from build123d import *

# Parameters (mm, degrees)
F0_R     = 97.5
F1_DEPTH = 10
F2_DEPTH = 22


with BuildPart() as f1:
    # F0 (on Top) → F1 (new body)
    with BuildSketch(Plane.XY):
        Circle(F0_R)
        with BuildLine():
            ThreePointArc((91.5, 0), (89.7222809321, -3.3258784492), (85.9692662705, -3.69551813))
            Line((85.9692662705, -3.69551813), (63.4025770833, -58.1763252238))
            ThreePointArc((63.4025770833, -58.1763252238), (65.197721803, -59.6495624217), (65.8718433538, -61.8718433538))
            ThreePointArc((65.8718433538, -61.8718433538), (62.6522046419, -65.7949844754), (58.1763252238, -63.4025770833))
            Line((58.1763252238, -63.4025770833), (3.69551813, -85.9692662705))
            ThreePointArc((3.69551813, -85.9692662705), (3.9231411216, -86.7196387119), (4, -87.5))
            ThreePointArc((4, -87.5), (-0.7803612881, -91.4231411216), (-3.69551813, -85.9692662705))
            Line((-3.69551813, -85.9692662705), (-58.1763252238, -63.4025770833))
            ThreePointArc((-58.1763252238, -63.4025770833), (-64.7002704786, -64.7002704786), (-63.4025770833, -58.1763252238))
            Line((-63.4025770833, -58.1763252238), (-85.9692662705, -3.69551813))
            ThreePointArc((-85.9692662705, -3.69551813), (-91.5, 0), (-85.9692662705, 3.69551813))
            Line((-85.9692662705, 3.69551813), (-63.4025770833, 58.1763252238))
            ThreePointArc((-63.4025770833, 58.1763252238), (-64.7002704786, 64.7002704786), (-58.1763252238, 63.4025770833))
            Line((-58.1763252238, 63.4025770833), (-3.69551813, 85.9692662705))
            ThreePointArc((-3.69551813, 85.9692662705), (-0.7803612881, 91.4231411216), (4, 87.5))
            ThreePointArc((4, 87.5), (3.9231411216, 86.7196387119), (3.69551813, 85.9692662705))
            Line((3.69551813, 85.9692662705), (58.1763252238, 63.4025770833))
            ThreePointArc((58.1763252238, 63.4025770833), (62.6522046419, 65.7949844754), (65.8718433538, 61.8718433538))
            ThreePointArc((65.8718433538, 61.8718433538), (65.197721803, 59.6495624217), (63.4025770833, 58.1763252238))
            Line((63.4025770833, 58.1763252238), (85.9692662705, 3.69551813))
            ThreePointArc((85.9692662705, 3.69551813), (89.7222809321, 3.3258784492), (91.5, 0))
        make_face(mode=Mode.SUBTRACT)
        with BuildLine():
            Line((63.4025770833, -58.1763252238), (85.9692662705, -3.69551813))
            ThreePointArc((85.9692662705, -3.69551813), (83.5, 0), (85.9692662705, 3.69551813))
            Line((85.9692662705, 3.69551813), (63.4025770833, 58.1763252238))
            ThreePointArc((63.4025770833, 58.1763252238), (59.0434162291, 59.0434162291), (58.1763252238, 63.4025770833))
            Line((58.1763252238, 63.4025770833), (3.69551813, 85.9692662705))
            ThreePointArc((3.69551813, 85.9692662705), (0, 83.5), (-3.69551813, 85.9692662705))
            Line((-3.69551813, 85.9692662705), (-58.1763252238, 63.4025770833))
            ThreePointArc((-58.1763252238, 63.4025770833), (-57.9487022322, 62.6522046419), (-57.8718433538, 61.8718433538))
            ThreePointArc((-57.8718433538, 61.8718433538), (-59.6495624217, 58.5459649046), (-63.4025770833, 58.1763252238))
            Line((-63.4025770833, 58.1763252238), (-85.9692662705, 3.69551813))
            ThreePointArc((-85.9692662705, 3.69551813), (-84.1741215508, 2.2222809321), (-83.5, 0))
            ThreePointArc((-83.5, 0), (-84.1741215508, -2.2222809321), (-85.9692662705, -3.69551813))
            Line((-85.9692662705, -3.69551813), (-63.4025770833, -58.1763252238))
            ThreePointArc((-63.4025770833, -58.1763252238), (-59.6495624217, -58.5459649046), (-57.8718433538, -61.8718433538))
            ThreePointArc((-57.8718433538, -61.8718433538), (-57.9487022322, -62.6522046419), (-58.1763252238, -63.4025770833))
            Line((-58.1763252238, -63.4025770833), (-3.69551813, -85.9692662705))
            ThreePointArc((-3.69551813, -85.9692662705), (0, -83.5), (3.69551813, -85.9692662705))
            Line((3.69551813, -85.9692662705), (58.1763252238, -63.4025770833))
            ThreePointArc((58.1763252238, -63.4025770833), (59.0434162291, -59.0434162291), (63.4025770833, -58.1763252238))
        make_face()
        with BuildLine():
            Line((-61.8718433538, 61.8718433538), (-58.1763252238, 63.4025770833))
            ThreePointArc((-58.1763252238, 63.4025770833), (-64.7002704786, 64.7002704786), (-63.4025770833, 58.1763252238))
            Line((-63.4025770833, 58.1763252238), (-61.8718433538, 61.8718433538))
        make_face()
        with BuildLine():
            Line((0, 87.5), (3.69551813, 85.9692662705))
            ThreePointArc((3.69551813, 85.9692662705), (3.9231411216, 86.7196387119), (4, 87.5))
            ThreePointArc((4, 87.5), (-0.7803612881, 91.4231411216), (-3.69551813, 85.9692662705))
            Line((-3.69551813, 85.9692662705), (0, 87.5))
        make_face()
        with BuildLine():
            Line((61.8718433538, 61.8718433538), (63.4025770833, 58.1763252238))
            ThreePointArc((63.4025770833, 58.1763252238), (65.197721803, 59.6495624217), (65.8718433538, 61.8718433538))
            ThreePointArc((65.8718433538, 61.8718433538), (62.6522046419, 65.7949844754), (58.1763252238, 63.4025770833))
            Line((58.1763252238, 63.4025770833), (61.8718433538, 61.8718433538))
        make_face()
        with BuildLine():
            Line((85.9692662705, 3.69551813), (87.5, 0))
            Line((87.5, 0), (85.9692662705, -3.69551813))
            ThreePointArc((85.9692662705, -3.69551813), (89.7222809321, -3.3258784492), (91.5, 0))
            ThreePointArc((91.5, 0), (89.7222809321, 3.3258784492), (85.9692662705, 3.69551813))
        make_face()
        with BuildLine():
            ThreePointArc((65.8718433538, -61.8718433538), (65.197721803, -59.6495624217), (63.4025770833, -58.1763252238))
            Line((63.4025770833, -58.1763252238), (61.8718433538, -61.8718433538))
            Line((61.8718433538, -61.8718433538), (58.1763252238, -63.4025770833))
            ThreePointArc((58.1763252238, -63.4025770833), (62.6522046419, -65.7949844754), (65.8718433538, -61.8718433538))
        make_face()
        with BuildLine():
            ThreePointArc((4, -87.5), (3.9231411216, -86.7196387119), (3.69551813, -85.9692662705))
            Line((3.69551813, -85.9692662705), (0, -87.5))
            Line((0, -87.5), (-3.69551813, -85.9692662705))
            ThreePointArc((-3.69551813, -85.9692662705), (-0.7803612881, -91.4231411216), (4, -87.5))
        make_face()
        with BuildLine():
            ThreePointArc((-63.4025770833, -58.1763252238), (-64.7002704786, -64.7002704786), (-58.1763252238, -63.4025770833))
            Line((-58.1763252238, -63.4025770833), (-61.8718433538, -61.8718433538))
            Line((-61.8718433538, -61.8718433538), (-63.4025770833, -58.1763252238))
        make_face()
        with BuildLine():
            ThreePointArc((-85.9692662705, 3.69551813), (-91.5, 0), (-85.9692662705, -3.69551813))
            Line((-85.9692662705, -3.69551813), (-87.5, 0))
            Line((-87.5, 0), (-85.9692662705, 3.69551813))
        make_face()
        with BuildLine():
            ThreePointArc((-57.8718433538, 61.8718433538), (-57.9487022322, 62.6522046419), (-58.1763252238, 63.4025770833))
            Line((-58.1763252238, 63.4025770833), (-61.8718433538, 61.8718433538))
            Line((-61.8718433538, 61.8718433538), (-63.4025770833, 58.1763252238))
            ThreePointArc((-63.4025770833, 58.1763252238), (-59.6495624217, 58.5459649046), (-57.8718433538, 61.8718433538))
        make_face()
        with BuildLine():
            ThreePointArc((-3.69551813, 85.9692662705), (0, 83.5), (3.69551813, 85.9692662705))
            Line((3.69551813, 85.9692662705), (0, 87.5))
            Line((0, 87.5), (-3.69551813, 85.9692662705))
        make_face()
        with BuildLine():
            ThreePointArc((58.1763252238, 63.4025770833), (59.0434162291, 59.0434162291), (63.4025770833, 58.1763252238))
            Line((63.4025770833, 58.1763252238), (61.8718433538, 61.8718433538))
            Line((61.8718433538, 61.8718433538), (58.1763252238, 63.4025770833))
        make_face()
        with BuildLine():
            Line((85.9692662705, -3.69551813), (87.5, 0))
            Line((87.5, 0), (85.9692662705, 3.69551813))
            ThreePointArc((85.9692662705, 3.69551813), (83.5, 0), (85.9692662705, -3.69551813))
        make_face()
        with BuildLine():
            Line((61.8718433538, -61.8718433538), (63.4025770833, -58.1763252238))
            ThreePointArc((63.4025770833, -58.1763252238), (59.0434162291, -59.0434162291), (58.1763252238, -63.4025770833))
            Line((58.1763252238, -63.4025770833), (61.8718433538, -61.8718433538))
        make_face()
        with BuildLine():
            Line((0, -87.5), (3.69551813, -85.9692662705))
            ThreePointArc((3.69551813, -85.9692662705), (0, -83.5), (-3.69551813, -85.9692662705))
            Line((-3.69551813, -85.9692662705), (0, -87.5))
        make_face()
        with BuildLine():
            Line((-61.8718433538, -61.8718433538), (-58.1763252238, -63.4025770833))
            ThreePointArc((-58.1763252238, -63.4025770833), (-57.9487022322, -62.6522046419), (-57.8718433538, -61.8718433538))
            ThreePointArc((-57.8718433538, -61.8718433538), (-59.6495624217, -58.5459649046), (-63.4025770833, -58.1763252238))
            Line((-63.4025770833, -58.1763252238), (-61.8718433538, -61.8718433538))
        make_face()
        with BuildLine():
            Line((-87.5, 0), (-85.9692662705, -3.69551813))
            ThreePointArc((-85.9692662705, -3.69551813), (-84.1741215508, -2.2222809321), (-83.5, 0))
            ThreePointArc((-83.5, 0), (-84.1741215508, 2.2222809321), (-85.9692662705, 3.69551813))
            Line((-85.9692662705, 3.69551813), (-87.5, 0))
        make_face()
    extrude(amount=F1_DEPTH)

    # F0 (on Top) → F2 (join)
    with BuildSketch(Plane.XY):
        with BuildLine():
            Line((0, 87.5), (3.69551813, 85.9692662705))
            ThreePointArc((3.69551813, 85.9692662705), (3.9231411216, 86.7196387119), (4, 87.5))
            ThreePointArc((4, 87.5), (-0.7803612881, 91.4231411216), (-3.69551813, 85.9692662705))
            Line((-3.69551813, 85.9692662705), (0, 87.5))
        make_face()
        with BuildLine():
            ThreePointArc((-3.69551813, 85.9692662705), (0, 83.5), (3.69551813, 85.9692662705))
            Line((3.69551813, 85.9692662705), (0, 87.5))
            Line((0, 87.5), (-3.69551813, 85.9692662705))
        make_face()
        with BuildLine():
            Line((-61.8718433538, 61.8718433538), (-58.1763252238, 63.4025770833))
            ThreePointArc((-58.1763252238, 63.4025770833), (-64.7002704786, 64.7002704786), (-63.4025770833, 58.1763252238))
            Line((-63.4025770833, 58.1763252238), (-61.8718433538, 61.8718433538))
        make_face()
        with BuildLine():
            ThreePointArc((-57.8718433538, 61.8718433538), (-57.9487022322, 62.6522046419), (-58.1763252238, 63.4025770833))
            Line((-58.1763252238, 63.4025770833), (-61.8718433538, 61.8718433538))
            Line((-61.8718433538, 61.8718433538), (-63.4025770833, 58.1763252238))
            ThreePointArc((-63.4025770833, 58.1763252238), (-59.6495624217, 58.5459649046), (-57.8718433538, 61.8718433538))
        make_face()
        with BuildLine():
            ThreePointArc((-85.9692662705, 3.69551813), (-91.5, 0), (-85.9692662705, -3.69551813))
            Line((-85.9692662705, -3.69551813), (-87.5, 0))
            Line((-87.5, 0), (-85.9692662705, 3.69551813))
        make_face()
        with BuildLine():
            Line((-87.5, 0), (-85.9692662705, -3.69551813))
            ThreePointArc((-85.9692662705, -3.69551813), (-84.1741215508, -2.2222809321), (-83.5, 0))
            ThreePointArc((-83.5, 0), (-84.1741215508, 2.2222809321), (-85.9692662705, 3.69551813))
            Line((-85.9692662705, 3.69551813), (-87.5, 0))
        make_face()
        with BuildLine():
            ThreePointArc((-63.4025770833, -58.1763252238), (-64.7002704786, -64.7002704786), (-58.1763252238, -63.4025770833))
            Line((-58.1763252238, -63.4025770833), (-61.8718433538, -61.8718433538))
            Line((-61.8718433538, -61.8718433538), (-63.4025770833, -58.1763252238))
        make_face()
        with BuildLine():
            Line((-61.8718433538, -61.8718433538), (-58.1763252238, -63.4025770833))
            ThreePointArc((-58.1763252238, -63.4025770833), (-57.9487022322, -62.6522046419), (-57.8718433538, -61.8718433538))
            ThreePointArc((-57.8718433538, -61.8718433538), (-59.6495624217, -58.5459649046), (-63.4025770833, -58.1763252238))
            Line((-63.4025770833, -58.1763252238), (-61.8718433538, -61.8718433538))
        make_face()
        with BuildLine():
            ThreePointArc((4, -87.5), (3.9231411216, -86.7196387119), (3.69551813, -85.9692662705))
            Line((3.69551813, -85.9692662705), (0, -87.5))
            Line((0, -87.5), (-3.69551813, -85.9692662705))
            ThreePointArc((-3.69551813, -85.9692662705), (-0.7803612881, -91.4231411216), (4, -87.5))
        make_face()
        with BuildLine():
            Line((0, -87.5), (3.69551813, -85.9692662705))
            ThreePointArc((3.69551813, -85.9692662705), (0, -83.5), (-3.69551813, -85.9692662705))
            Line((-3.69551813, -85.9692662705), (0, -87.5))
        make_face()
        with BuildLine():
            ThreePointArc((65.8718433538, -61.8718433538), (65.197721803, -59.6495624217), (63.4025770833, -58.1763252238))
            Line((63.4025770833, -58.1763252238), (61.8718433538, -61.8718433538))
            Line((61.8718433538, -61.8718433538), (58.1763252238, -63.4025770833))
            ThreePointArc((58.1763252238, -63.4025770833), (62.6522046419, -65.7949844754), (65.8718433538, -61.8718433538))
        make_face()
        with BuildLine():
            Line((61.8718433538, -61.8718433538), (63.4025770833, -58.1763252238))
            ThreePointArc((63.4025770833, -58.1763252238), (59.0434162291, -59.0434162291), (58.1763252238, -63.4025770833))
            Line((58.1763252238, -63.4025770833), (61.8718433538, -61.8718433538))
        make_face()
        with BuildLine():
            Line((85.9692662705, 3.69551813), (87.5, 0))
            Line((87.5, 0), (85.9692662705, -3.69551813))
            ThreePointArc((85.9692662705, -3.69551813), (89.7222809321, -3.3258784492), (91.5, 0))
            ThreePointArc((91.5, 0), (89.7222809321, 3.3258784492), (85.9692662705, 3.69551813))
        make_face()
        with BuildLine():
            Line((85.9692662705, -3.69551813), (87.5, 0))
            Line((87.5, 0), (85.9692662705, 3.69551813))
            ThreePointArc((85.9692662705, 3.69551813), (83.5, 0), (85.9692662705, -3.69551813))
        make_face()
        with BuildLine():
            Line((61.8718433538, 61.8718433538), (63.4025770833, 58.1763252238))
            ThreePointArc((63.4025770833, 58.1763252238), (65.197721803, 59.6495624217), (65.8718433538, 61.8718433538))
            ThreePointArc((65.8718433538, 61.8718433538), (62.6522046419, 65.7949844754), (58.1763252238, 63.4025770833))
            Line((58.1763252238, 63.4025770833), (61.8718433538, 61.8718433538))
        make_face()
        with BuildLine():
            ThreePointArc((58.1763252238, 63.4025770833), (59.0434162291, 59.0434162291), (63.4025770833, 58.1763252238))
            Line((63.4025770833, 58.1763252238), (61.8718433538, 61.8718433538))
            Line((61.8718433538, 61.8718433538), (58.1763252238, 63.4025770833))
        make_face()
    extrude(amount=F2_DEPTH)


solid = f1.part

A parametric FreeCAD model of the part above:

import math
import FreeCAD as App
import Part
import Sketcher
from FreeCAD import Vector
Q = App.Units.Quantity

doc = App.newDocument("Part")
body = doc.addObject("PartDesign::Body", "Body")

# Sketch on XY plane
sketch1 = doc.addObject("Sketcher::SketchObject", "Sketch")
body.addObject(sketch1)
sketch1.AttachmentSupport = (doc.XY_Plane, [""])
sketch1.MapMode = "FlatFace"
sketch1.addGeometry(Part.Circle(Vector(0, 0, 0), Vector(0, 0, 1), 98), False)
sketch1.addConstraint(Sketcher.Constraint("Coincident", 0, 3, -1, 1))
sketch1.addConstraint(Sketcher.Constraint("Diameter", 0, Q("195 mm")))
pad1 = doc.addObject("PartDesign::Pad", "Pad")
body.addObject(pad1)
pad1.Profile = sketch1
pad1.Length = 10

# Sketch on XY plane
sketch2 = doc.addObject("Sketcher::SketchObject", "Sketch001")
body.addObject(sketch2)
sketch2.AttachmentSupport = (doc.XY_Plane, [""])
sketch2.MapMode = "FlatFace"
sketch2.addGeometry(Part.ArcOfCircle(Part.Circle(Vector(0, 87.5, 0), Vector(0, 0, 1), 4), math.radians(-22), math.radians(0)), False)
sketch2.addGeometry(Part.ArcOfCircle(Part.Circle(Vector(0, 87.5, 0), Vector(0, 0, 1), 4), math.radians(0), math.radians(202)), False)
sketch2.addGeometry(Part.ArcOfCircle(Part.Circle(Vector(0, 87.5, 0), Vector(0, 0, 1), 4), math.radians(-158), math.radians(-22)), False)
sketch2.addGeometry(Part.ArcOfCircle(Part.Circle(Vector(-61.9, 61.9, 0), Vector(0, 0, 1), 4), math.radians(22), math.radians(248)), False)
sketch2.addGeometry(Part.ArcOfCircle(Part.Circle(Vector(-61.9, 61.9, 0), Vector(0, 0, 1), 4), math.radians(-112), math.radians(0)), False)
sketch2.addGeometry(Part.ArcOfCircle(Part.Circle(Vector(-61.9, 61.9, 0), Vector(0, 0, 1), 4), math.radians(0), math.radians(22)), False)
sketch2.addGeometry(Part.ArcOfCircle(Part.Circle(Vector(-87.5, 0, 0), Vector(0, 0, 1), 4), math.radians(68), math.radians(292)), False)
sketch2.addGeometry(Part.ArcOfCircle(Part.Circle(Vector(-87.5, 0, 0), Vector(0, 0, 1), 4), math.radians(-68), math.radians(0)), False)
sketch2.addGeometry(Part.ArcOfCircle(Part.Circle(Vector(-87.5, 0, 0), Vector(0, 0, 1), 4), math.radians(0), math.radians(68)), False)
sketch2.addGeometry(Part.ArcOfCircle(Part.Circle(Vector(-61.9, -61.9, 0), Vector(0, 0, 1), 4), math.radians(112), math.radians(338)), False)
sketch2.addGeometry(Part.ArcOfCircle(Part.Circle(Vector(-61.9, -61.9, 0), Vector(0, 0, 1), 4), math.radians(-22), math.radians(0)), False)
sketch2.addGeometry(Part.ArcOfCircle(Part.Circle(Vector(-61.9, -61.9, 0), Vector(0, 0, 1), 4), math.radians(0), math.radians(112)), False)
sketch2.addGeometry(Part.ArcOfCircle(Part.Circle(Vector(0, -87.5, 0), Vector(0, 0, 1), 4), math.radians(0), math.radians(22)), False)
sketch2.addGeometry(Part.ArcOfCircle(Part.Circle(Vector(0, -87.5, 0), Vector(0, 0, 1), 4), math.radians(22), math.radians(158)), False)
sketch2.addGeometry(Part.ArcOfCircle(Part.Circle(Vector(0, -87.5, 0), Vector(0, 0, 1), 4), math.radians(158), math.radians(360)), False)
sketch2.addGeometry(Part.ArcOfCircle(Part.Circle(Vector(61.9, -61.9, 0), Vector(0, 0, 1), 4), math.radians(0), math.radians(68)), False)
sketch2.addGeometry(Part.ArcOfCircle(Part.Circle(Vector(61.9, -61.9, 0), Vector(0, 0, 1), 4), math.radians(68), math.radians(202)), False)
sketch2.addGeometry(Part.ArcOfCircle(Part.Circle(Vector(61.9, -61.9, 0), Vector(0, 0, 1), 4), math.radians(-158), math.radians(0)), False)
sketch2.addGeometry(Part.ArcOfCircle(Part.Circle(Vector(87.5, 0, 0), Vector(0, 0, 1), 4), math.radians(-112), math.radians(0)), False)
sketch2.addGeometry(Part.ArcOfCircle(Part.Circle(Vector(87.5, 0, 0), Vector(0, 0, 1), 4), math.radians(0), math.radians(112)), False)
sketch2.addGeometry(Part.ArcOfCircle(Part.Circle(Vector(87.5, 0, 0), Vector(0, 0, 1), 4), math.radians(112), math.radians(248)), False)
sketch2.addGeometry(Part.ArcOfCircle(Part.Circle(Vector(61.9, 61.9, 0), Vector(0, 0, 1), 4), math.radians(-68), math.radians(0)), False)
sketch2.addGeometry(Part.ArcOfCircle(Part.Circle(Vector(61.9, 61.9, 0), Vector(0, 0, 1), 4), math.radians(0), math.radians(158)), False)
sketch2.addGeometry(Part.ArcOfCircle(Part.Circle(Vector(61.9, 61.9, 0), Vector(0, 0, 1), 4), math.radians(158), math.radians(292)), False)
sketch2.addConstraint(Sketcher.Constraint("Tangent", 0, 2, 1, 1))
sketch2.addConstraint(Sketcher.Constraint("Tangent", 1, 2, 2, 1))
sketch2.addConstraint(Sketcher.Constraint("Tangent", 2, 2, 0, 1))
sketch2.addConstraint(Sketcher.Constraint("Tangent", 3, 2, 4, 1))
sketch2.addConstraint(Sketcher.Constraint("Tangent", 4, 2, 5, 1))
sketch2.addConstraint(Sketcher.Constraint("Tangent", 5, 2, 3, 1))
sketch2.addConstraint(Sketcher.Constraint("Tangent", 6, 2, 7, 1))
sketch2.addConstraint(Sketcher.Constraint("Tangent", 7, 2, 8, 1))
sketch2.addConstraint(Sketcher.Constraint("Tangent", 8, 2, 6, 1))
sketch2.addConstraint(Sketcher.Constraint("Tangent", 9, 2, 10, 1))
sketch2.addConstraint(Sketcher.Constraint("Tangent", 10, 2, 11, 1))
sketch2.addConstraint(Sketcher.Constraint("Tangent", 11, 2, 9, 1))
sketch2.addConstraint(Sketcher.Constraint("Tangent", 12, 2, 13, 1))
sketch2.addConstraint(Sketcher.Constraint("Tangent", 13, 2, 14, 1))
sketch2.addConstraint(Sketcher.Constraint("Tangent", 14, 2, 12, 1))
sketch2.addConstraint(Sketcher.Constraint("Tangent", 15, 2, 16, 1))
sketch2.addConstraint(Sketcher.Constraint("Tangent", 16, 2, 17, 1))
sketch2.addConstraint(Sketcher.Constraint("Tangent", 17, 2, 15, 1))
sketch2.addConstraint(Sketcher.Constraint("Tangent", 18, 2, 19, 1))
sketch2.addConstraint(Sketcher.Constraint("Tangent", 19, 2, 20, 1))
sketch2.addConstraint(Sketcher.Constraint("Tangent", 20, 2, 18, 1))
sketch2.addConstraint(Sketcher.Constraint("Tangent", 21, 2, 22, 1))
sketch2.addConstraint(Sketcher.Constraint("Tangent", 22, 2, 23, 1))
sketch2.addConstraint(Sketcher.Constraint("Tangent", 23, 2, 21, 1))
sketch2.addConstraint(Sketcher.Constraint("Equal", 2, 3))
sketch2.addConstraint(Sketcher.Constraint("Equal", 5, 6))
sketch2.addConstraint(Sketcher.Constraint("Equal", 8, 9))
sketch2.addConstraint(Sketcher.Constraint("Equal", 11, 12))
sketch2.addConstraint(Sketcher.Constraint("Equal", 14, 15))
sketch2.addConstraint(Sketcher.Constraint("Equal", 17, 18))
sketch2.addConstraint(Sketcher.Constraint("Equal", 20, 21))
sketch2.addConstraint(Sketcher.Constraint("Symmetric", 0, 3, 12, 3, -1, 1))
sketch2.addConstraint(Sketcher.Constraint("Symmetric", 3, 3, 15, 3, -1, 1))
sketch2.addConstraint(Sketcher.Constraint("Symmetric", 6, 3, 18, 3, -1, 1))
sketch2.addConstraint(Sketcher.Constraint("Symmetric", 9, 3, 21, 3, -1, 1))
sketch2.addConstraint(Sketcher.Constraint("Symmetric", 9, 3, 15, 3, -2))
sketch2.addConstraint(Sketcher.Constraint("Symmetric", 1, 2, 2, 2, -2))
sketch2.addConstraint(Sketcher.Constraint("Symmetric", 8, 2, 19, 2, -2))
sketch2.addConstraint(Sketcher.Constraint("PointOnObject", 7, 2, -1))
sketch2.addConstraint(Sketcher.Constraint("PointOnObject", 18, 2, -1))
sketch2.addConstraint(Sketcher.Constraint("Horizontal", 2, 3, 0, 2))
sketch2.addConstraint(Sketcher.Constraint("Horizontal", 23, 3, 4, 2))
sketch2.addConstraint(Sketcher.Constraint("Horizontal", 17, 3, 10, 2))
sketch2.addConstraint(Sketcher.Constraint("Horizontal", 12, 2, 13, 2))
sketch2.addConstraint(Sketcher.Constraint("Horizontal", 13, 3, 14, 2))
sketch2.addConstraint(Sketcher.Constraint("Horizontal", 11, 2, 15, 2))
sketch2.addConstraint(Sketcher.Constraint("Horizontal", 9, 2, 16, 2))
sketch2.addConstraint(Sketcher.Constraint("Horizontal", 10, 2, 17, 2))
sketch2.addConstraint(Sketcher.Constraint("Horizontal", 6, 2, 20, 2))
sketch2.addConstraint(Sketcher.Constraint("Horizontal", 4, 2, 21, 2))
sketch2.addConstraint(Sketcher.Constraint("Horizontal", 5, 2, 22, 2))
sketch2.addConstraint(Sketcher.Constraint("Horizontal", 3, 2, 23, 2))
sketch2.addConstraint(Sketcher.Constraint("Vertical", 6, 2, 8, 2))
sketch2.addConstraint(Sketcher.Constraint("Vertical", 5, 2, 9, 2))
sketch2.addConstraint(Sketcher.Constraint("Vertical", 3, 2, 11, 2))
sketch2.addConstraint(Sketcher.Constraint("Vertical", 2, 2, 12, 2))
sketch2.addConstraint(Sketcher.Constraint("Radius", 0, Q("4 mm")))
sketch2.addConstraint(Sketcher.Constraint("DistanceY", -1, 1, 0, 3, Q("87.5 mm")))
sketch2.addConstraint(Sketcher.Constraint("DistanceX", 6, 3, -1, 1, Q("87.5 mm")))
sketch2.addConstraint(Sketcher.Constraint("DistanceX", 1, 2, -1, 1, Q("3.695518 mm")))
sketch2.addConstraint(Sketcher.Constraint("DistanceY", 6, 2, -1, 1, Q("3.695518 mm")))
sketch2.addConstraint(Sketcher.Constraint("DistanceY", 3, 2, 3, 3, Q("3.695518 mm")))
sketch2.addConstraint(Sketcher.Constraint("DistanceX", 5, 2, 4, 2, Q("0.304482 mm")))
sketch2.addConstraint(Sketcher.Constraint("DistanceY", 13, 2, 9, 2, Q("22.566689 mm")))
sketch2.addConstraint(Sketcher.Constraint("DistanceX", 3, 3, -1, 1, Q("61.871843 mm")))
pad2 = doc.addObject("PartDesign::Pad", "Pad001")
body.addObject(pad2)
pad2.Profile = sketch2
pad2.Length = 22

doc.recompute()
